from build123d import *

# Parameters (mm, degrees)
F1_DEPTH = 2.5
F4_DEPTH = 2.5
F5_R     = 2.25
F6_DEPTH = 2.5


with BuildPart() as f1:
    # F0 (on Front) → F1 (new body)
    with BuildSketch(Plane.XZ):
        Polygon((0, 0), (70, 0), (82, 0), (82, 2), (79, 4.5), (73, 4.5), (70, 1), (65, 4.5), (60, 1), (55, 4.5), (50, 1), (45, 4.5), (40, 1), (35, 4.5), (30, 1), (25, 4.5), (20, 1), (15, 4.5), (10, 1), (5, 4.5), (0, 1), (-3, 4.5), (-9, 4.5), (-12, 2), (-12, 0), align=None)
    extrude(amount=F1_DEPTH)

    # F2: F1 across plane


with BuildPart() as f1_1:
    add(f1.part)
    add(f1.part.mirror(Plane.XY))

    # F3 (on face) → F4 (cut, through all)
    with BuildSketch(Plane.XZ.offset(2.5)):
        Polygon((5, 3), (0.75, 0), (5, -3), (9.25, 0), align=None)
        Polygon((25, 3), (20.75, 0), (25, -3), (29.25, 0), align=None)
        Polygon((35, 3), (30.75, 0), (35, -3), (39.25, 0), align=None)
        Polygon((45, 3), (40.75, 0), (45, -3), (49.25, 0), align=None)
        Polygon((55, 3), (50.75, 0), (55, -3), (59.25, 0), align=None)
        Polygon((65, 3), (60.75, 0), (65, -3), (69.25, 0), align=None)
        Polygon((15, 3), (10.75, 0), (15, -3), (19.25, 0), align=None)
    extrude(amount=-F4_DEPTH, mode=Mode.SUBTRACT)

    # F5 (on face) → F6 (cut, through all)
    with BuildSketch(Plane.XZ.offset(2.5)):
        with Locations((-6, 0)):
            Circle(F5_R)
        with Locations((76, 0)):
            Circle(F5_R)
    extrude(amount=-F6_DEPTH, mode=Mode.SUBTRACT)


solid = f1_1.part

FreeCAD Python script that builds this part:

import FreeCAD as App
import Part
import Sketcher

V = App.Vector
Q = App.Units.Quantity


def add_polygon(sketch, points):
    """Adds a closed chain of lines whose ends are joined by coincident constraints."""
    first, n = sketch.GeometryCount, len(points)
    for a, b in zip(points, points[1:] + points[:1]):
        sketch.addGeometry(Part.LineSegment(App.Vector(*a, 0), App.Vector(*b, 0)), False)
    for i in range(n):
        sketch.addConstraint(Sketcher.Constraint("Coincident", first + i, 2, first + (i + 1) % n, 1))

doc = App.newDocument("Part")
body = doc.addObject("PartDesign::Body", "Body")

# Sketch on XZ plane
sketch1 = body.newObject("Sketcher::SketchObject", "Sketch")
sketch1.AttachmentSupport = (doc.getObject("XZ_Plane"), [""])
sketch1.MapMode = "FlatFace"
add_polygon(sketch1, [(82, 0), (82, 2), (79, 4.5), (73, 4.5), (70, 1), (65, 4.5), (60, 1), (55, 4.5), (50, 1), (45, 4.5), (40, 1), (35, 4.5), (30, 1), (25, 4.5), (20, 1), (15, 4.5), (10, 1), (5, 4.5), (0, 1), (-3, 4.5), (-9, 4.5), (-12, 2), (-12, 0)])  # lines 0-22
sketch1.addConstraint([
    Sketcher.Constraint("Vertical", 0),
    Sketcher.Constraint("Horizontal", 2),
    Sketcher.Constraint("Horizontal", 19),
    Sketcher.Constraint("Vertical", 21),
    Sketcher.Constraint("Horizontal", 22),
    Sketcher.Constraint("PointOnObject", 17, 2, -2),
    Sketcher.Constraint("PointOnObject", 21, 2, -1),
    Sketcher.Constraint("Parallel", 4, 6),
    Sketcher.Constraint("Parallel", 5, 7),
    Sketcher.Constraint("Parallel", 6, 8),
    Sketcher.Constraint("Parallel", 7, 9),
    Sketcher.Constraint("Parallel", 8, 10),
    Sketcher.Constraint("Parallel", 9, 11),
    Sketcher.Constraint("Parallel", 10, 12),
    Sketcher.Constraint("Parallel", 11, 13),
    Sketcher.Constraint("Parallel", 12, 14),
    Sketcher.Constraint("Parallel", 13, 15),
    Sketcher.Constraint("Parallel", 14, 16),
    Sketcher.Constraint("Parallel", 15, 17),
    Sketcher.Constraint("Horizontal", 2, 2, 4, 2),
    Sketcher.Constraint("Horizontal", 3, 2, 5, 2),
    Sketcher.Constraint("Horizontal", 4, 2, 6, 2),
    Sketcher.Constraint("Horizontal", 5, 2, 7, 2),
    Sketcher.Constraint("Horizontal", 6, 2, 8, 2),
    Sketcher.Constraint("Horizontal", 7, 2, 9, 2),
    Sketcher.Constraint("Horizontal", 8, 2, 10, 2),
    Sketcher.Constraint("Horizontal", 9, 2, 11, 2),
    Sketcher.Constraint("Horizontal", 10, 2, 12, 2),
    Sketcher.Constraint("Horizontal", 11, 2, 13, 2),
    Sketcher.Constraint("Horizontal", 12, 2, 14, 2),
    Sketcher.Constraint("Horizontal", 13, 2, 15, 2),
    Sketcher.Constraint("Horizontal", 14, 2, 16, 2),
    Sketcher.Constraint("Horizontal", 15, 2, 17, 2),
    Sketcher.Constraint("Horizontal", 16, 2, 18, 2),
    Sketcher.Constraint("Horizontal", 0, 2, 20, 2),
    Sketcher.Constraint("Equal", 2, 19),
    Sketcher.Constraint("Equal", 4, 5),
    Sketcher.Constraint("Equal", 3, 18),
    Sketcher.Constraint("Equal", 1, 20),
    Sketcher.Constraint("DistanceX", 2, 2, 2, 1, Q("6 mm")),
    Sketcher.Constraint("DistanceX", 22, 1, 22, 2, Q("94 mm")),
    Sketcher.Constraint("DistanceY", 0, 1, 0, 2, Q("2 mm")),
    Sketcher.Constraint("DistanceX", -1, 1, 0, 2, Q("82 mm")),
    Sketcher.Constraint("DistanceX", -1, 1, 1, 2, Q("79 mm")),
    Sketcher.Constraint("DistanceY", -1, 1, 3, 2, Q("1 mm")),
    Sketcher.Constraint("DistanceY", -1, 1, 1, 2, Q("4.5 mm")),
])
pad1 = body.newObject("PartDesign::Pad", "Pad")
pad1.Profile = sketch1
pad1.Length = 2.5
body2 = doc.addObject("PartDesign::Body", "Body001")
doc.recompute()

body2.BaseFeature = body
doc.recompute()

mirroring = doc.addObject("Part::Mirroring", "Mirroring")
mirroring.Source = body
mirroring.Base = V(0, 0, 0)
mirroring.Normal = V(0, 0, 1)
body3 = doc.addObject("PartDesign::Body", "Body002")
body3.BaseFeature = mirroring
boolean = body2.newObject("PartDesign::Boolean", "Boolean")
boolean.Type = "Fuse"
boolean.addObjects([body3])
doc.recompute()

# Sketch on XZ plane
sketch2 = body2.newObject("Sketcher::SketchObject", "Sketch001")
sketch2.AttachmentSupport = (doc.getObject("XZ_Plane001"), [""])
sketch2.MapMode = "FlatFace"
sketch2.AttachmentOffset = App.Placement(V(0, 0, 2.5), App.Rotation())
add_polygon(sketch2, [(5, 3), (1, 0), (5, -3), (9, 0)])  # lines 0-3
add_polygon(sketch2, [(25, 3), (21, 0), (25, -3), (29, 0)])  # lines 4-7
add_polygon(sketch2, [(35, 3), (31, 0), (35, -3), (39, 0)])  # lines 8-11
add_polygon(sketch2, [(45, 3), (41, 0), (45, -3), (49, 0)])  # lines 12-15
add_polygon(sketch2, [(55, 3), (51, 0), (55, -3), (59, 0)])  # lines 16-19
add_polygon(sketch2, [(65, 3), (61, 0), (65, -3), (69, 0)])  # lines 20-23
add_polygon(sketch2, [(15, 3), (11, 0), (15, -3), (19, 0)])  # lines 24-27
sketch2.addConstraint([
    Sketcher.Constraint("Symmetric", 1, 2, 3, 2, -1),
    Sketcher.Constraint("Symmetric", 5, 2, 7, 2, -1),
    Sketcher.Constraint("Symmetric", 9, 2, 11, 2, -1),
    Sketcher.Constraint("Symmetric", 13, 2, 15, 2, -1),
    Sketcher.Constraint("Symmetric", 17, 2, 19, 2, -1),
    Sketcher.Constraint("Symmetric", 21, 2, 23, 2, -1),
    Sketcher.Constraint("Symmetric", 25, 2, 27, 2, -1),
    Sketcher.Constraint("PointOnObject", 0, 2, -1),
    Sketcher.Constraint("PointOnObject", 2, 2, -1),
    Sketcher.Constraint("PointOnObject", 4, 2, -1),
    Sketcher.Constraint("PointOnObject", 6, 2, -1),
    Sketcher.Constraint("PointOnObject", 8, 2, -1),
    Sketcher.Constraint("PointOnObject", 10, 2, -1),
    Sketcher.Constraint("PointOnObject", 12, 2, -1),
    Sketcher.Constraint("PointOnObject", 14, 2, -1),
    Sketcher.Constraint("PointOnObject", 16, 2, -1),
    Sketcher.Constraint("PointOnObject", 18, 2, -1),
    Sketcher.Constraint("PointOnObject", 20, 2, -1),
    Sketcher.Constraint("PointOnObject", 22, 2, -1),
    Sketcher.Constraint("PointOnObject", 24, 2, -1),
    Sketcher.Constraint("PointOnObject", 26, 2, -1),
    Sketcher.Constraint("Parallel", 0, 2),
    Sketcher.Constraint("Parallel", 2, 4),
    Sketcher.Constraint("Parallel", 4, 6),
    Sketcher.Constraint("Parallel", 6, 8),
    Sketcher.Constraint("Parallel", 8, 10),
    Sketcher.Constraint("Parallel", 10, 12),
    Sketcher.Constraint("Parallel", 12, 14),
    Sketcher.Constraint("Parallel", 14, 16),
    Sketcher.Constraint("Parallel", 16, 18),
    Sketcher.Constraint("Parallel", 18, 20),
    Sketcher.Constraint("Parallel", 20, 22),
    Sketcher.Constraint("Parallel", 22, 24),
    Sketcher.Constraint("Parallel", 24, 26),
    Sketcher.Constraint("Horizontal", 1, 2, 5, 2),
    Sketcher.Constraint("Horizontal", 5, 2, 9, 2),
    Sketcher.Constraint("Horizontal", 9, 2, 13, 2),
    Sketcher.Constraint("Horizontal", 13, 2, 17, 2),
    Sketcher.Constraint("Horizontal", 17, 2, 21, 2),
    Sketcher.Constraint("Horizontal", 21, 2, 25, 2),
    Sketcher.Constraint("DistanceX", -1, 1, 1, 2, Q("5 mm")),
    Sketcher.Constraint("DistanceY", 1, 2, -1, 1, Q("3 mm")),
    Sketcher.Constraint("DistanceX", -1, 1, 5, 2, Q("25 mm")),
    Sketcher.Constraint("DistanceX", -1, 1, 9, 2, Q("35 mm")),
    Sketcher.Constraint("DistanceX", -1, 1, 13, 2, Q("45 mm")),
    Sketcher.Constraint("DistanceX", -1, 1, 17, 2, Q("55 mm")),
    Sketcher.Constraint("DistanceX", -1, 1, 21, 2, Q("65 mm")),
    Sketcher.Constraint("DistanceX", -1, 1, 25, 2, Q("15 mm")),
    Sketcher.Constraint("DistanceX", 0, 2, 2, 2, Q("8.5 mm")),
])
pocket1 = body2.newObject("PartDesign::Pocket", "Pocket")
pocket1.Profile = sketch2
pocket1.Type = "ThroughAll"

# Sketch on XZ plane
sketch3 = body2.newObject("Sketcher::SketchObject", "Sketch002")
sketch3.AttachmentSupport = (doc.getObject("XZ_Plane001"), [""])
sketch3.MapMode = "FlatFace"
sketch3.AttachmentOffset = App.Placement(V(0, 0, 2.5), App.Rotation())
sketch3.addGeometry([
    Part.Circle(V(-6, 0, 0), V(0, 0, 1), 2.2),
    Part.Circle(V(76, 0, 0), V(0, 0, 1), 2.2),
], False)
sketch3.addConstraint([
    Sketcher.Constraint("Equal", 0, 1),
    Sketcher.Constraint("PointOnObject", 0, 3, -1),
    Sketcher.Constraint("PointOnObject", 1, 3, -1),
    Sketcher.Constraint("Diameter", 0, Q("4.5 mm")),
    Sketcher.Constraint("DistanceX", 0, 3, -1, 1, Q("6 mm")),
    Sketcher.Constraint("DistanceX", -1, 1, 1, 3, Q("76 mm")),
])
pocket2 = body2.newObject("PartDesign::Pocket", "Pocket001")
pocket2.Profile = sketch3
pocket2.Type = "ThroughAll"
mirroring.Visibility = False

doc.recompute()
